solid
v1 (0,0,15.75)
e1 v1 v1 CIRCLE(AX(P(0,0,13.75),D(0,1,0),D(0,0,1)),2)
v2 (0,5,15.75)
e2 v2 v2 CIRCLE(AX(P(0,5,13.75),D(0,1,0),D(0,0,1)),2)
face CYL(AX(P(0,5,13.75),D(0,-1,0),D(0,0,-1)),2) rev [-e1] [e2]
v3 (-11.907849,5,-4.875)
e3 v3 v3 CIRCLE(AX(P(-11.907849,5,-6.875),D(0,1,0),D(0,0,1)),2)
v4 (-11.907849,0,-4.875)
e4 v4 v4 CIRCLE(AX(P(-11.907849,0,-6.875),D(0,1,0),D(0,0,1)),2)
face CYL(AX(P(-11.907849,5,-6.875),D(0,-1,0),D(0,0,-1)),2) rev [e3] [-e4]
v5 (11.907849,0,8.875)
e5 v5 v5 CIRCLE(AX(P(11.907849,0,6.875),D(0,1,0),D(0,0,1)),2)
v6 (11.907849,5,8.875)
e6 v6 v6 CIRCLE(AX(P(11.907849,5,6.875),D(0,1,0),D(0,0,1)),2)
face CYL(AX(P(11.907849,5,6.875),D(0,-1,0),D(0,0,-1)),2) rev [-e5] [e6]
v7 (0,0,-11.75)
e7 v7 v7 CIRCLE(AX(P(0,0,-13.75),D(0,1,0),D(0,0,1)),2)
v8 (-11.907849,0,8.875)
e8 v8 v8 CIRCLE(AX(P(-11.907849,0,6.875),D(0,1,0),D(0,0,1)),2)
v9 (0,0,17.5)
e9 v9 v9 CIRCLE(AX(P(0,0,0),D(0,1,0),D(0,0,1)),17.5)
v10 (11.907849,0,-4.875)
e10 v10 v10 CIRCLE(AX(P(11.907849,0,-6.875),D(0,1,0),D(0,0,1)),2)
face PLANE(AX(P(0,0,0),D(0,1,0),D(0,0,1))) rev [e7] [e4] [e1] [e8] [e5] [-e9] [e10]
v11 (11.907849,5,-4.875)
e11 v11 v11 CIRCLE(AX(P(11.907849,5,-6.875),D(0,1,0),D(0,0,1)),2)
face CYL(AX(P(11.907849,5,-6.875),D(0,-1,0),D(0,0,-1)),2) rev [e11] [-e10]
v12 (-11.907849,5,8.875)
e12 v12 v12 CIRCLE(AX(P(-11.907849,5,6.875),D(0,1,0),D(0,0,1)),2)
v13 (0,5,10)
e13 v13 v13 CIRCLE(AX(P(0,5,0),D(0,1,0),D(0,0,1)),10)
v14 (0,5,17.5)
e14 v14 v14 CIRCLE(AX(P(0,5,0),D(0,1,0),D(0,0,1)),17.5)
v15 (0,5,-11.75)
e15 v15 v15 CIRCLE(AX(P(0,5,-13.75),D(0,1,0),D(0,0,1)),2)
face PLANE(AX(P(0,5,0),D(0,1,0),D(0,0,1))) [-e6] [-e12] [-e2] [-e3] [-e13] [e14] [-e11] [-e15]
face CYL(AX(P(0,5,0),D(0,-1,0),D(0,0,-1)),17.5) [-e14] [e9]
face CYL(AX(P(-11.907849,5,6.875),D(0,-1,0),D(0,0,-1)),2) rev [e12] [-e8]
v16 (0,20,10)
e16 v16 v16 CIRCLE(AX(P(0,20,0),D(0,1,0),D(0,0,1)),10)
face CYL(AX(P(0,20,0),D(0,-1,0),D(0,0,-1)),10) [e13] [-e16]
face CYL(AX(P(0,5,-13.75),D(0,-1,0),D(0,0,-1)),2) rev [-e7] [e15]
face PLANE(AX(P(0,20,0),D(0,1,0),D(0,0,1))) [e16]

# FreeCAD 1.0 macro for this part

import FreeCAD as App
import Part
import Sketcher
from FreeCAD import Vector
Q = App.Units.Quantity

doc = App.newDocument("Part")
body = doc.addObject("PartDesign::Body", "Body")

# Sketch on XZ plane
sketch1 = body.newObject("Sketcher::SketchObject", "Sketch")
sketch1.AttachmentSupport = (doc.getObject("XZ_Plane"), [""])
sketch1.MapMode = "FlatFace"
sketch1.addGeometry([
    Part.Circle(Vector(0, 0, 0), Vector(0, 0, 1), 17.5),  # 0
    Part.Circle(Vector(-11.9, -6.9, 0), Vector(0, 0, 1), 2),  # 1
    Part.Circle(Vector(0, -13.8, 0), Vector(0, 0, 1), 2),  # 2
    Part.Circle(Vector(-11.9, 6.9, 0), Vector(0, 0, 1), 2),  # 3
    Part.Circle(Vector(11.9, -6.9, 0), Vector(0, 0, 1), 2),  # 4
    Part.Circle(Vector(0, 13.8, 0), Vector(0, 0, 1), 2),  # 5
    Part.Circle(Vector(11.9, 6.9, 0), Vector(0, 0, 1), 2),  # 6
], False)
sketch1.addConstraint([
    Sketcher.Constraint("Coincident", 0, 3, -1, 1),
    Sketcher.Constraint("Equal", 1, 2),
    Sketcher.Constraint("Equal", 2, 3),
    Sketcher.Constraint("Equal", 3, 4),
    Sketcher.Constraint("Equal", 4, 5),
    Sketcher.Constraint("Equal", 5, 6),
    Sketcher.Constraint("Symmetric", 3, 3, 4, 3, -1, 1),
    Sketcher.Constraint("Symmetric", 2, 3, 5, 3, -1, 1),
    Sketcher.Constraint("Symmetric", 1, 3, 6, 3, -1, 1),
    Sketcher.Constraint("Symmetric", 1, 3, 4, 3, -2),
    Sketcher.Constraint("PointOnObject", 2, 3, -2),
    Sketcher.Constraint("Diameter", 0, Q("35 mm")),
    Sketcher.Constraint("Diameter", 1, Q("4 mm")),
    Sketcher.Constraint("DistanceY", 2, 3, 5, 3, Q("27.5 mm")),
    Sketcher.Constraint("DistanceY", 1, 3, 3, 3, Q("13.75 mm")),
    Sketcher.Constraint("DistanceX", 1, 3, 4, 3, Q("23.815699 mm")),
])
pad1 = body.newObject("PartDesign::Pad", "Pad")
pad1.Profile = sketch1
pad1.Length = 5
pad1.Reversed = True

# Sketch on XZ plane
sketch2 = body.newObject("Sketcher::SketchObject", "Sketch001")
sketch2.AttachmentSupport = (doc.getObject("XZ_Plane"), [""])
sketch2.MapMode = "FlatFace"
sketch2.AttachmentOffset = App.Placement(Vector(0, 0, -5), App.Rotation())
sketch2.addGeometry(Part.Circle(Vector(0, 0, 0), Vector(0, 0, 1), 10), False)
sketch2.addConstraint([
    Sketcher.Constraint("Coincident", 0, 3, -1, 1),
    Sketcher.Constraint("Diameter", 0, Q("20 mm")),
])
pad2 = body.newObject("PartDesign::Pad", "Pad001")
pad2.Profile = sketch2
pad2.Length = 15
pad2.Reversed = True

doc.recompute()
